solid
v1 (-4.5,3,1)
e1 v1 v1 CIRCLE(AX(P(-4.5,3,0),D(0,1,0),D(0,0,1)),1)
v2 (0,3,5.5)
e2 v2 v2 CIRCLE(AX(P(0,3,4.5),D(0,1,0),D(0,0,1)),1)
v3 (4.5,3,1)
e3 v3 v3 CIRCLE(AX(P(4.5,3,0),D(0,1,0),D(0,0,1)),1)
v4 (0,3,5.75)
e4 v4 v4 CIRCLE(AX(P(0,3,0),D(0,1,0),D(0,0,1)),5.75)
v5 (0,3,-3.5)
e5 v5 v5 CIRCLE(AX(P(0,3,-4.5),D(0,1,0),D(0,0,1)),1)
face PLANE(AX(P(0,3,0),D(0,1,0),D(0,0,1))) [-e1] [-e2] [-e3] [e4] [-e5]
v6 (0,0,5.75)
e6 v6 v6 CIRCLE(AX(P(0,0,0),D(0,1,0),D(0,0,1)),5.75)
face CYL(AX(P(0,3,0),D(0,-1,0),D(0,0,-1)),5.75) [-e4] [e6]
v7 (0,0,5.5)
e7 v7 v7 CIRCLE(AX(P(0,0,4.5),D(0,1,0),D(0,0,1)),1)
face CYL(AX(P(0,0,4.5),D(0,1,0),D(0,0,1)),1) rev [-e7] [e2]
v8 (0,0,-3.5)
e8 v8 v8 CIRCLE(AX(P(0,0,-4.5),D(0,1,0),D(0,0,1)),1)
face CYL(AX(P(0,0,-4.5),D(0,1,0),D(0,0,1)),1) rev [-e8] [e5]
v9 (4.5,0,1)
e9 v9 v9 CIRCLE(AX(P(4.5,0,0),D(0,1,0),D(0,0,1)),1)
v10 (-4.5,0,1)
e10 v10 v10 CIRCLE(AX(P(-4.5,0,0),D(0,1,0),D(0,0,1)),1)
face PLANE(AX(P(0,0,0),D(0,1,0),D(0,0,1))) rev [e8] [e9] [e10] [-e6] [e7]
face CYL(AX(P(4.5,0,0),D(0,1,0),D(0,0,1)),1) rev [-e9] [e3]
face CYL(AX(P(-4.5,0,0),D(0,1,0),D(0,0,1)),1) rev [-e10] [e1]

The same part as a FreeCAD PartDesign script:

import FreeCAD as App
import Part
import Sketcher
from FreeCAD import Vector

doc = App.newDocument("Part")
body = doc.addObject("PartDesign::Body", "Body")

# Sketch on XZ plane
sketch1 = body.newObject("Sketcher::SketchObject", "Sketch")
sketch1.AttachmentSupport = (doc.getObject("XZ_Plane"), [""])
sketch1.MapMode = "FlatFace"
sketch1.addGeometry(Part.Circle(Vector(0, 0, 0), Vector(0, 0, 1), 5.75), False)
sketch1.addConstraint([
    Sketcher.Constraint("Coincident", 0, 3, -1, 1),
    Sketcher.Constraint("Diameter", 0, 11.5),
])
pad1 = body.newObject("PartDesign::Pad", "Pad")
pad1.Profile = sketch1
pad1.Length = 3
pad1.Reversed = True

# Sketch on XZ plane
sketch2 = body.newObject("Sketcher::SketchObject", "Sketch001")
sketch2.AttachmentSupport = (doc.getObject("XZ_Plane"), [""])
sketch2.MapMode = "FlatFace"
sketch2.AttachmentOffset = App.Placement(Vector(0, 0, -3), App.Rotation())
sketch2.addGeometry([
    Part.Circle(Vector(0, -4.5, 0), Vector(0, 0, 1), 1),
    Part.Circle(Vector(4.5, 0, 0), Vector(0, 0, 1), 1),
    Part.Circle(Vector(0, 4.5, 0), Vector(0, 0, 1), 1),
    Part.Circle(Vector(-4.5, 0, 0), Vector(0, 0, 1), 1),
], False)
sketch2.addConstraint([
    Sketcher.Constraint("Equal", 0, 1),
    Sketcher.Constraint("Equal", 1, 2),
    Sketcher.Constraint("Equal", 2, 3),
    Sketcher.Constraint("Symmetric", 0, 3, 2, 3, -1, 1),
    Sketcher.Constraint("Symmetric", 1, 3, 3, 3, -1, 1),
    Sketcher.Constraint("PointOnObject", 0, 3, -2),
    Sketcher.Constraint("PointOnObject", 1, 3, -1),
    Sketcher.Constraint("Diameter", 0, 2.0),
    Sketcher.Constraint("DistanceY", 0, 3, 2, 3, 9.0),
    Sketcher.Constraint("DistanceX", 3, 3, 1, 3, 9.0),
])
pocket1 = body.newObject("PartDesign::Pocket", "Pocket")
pocket1.Profile = sketch2
pocket1.Length = 3
pocket1.Reversed = True

doc.recompute()
